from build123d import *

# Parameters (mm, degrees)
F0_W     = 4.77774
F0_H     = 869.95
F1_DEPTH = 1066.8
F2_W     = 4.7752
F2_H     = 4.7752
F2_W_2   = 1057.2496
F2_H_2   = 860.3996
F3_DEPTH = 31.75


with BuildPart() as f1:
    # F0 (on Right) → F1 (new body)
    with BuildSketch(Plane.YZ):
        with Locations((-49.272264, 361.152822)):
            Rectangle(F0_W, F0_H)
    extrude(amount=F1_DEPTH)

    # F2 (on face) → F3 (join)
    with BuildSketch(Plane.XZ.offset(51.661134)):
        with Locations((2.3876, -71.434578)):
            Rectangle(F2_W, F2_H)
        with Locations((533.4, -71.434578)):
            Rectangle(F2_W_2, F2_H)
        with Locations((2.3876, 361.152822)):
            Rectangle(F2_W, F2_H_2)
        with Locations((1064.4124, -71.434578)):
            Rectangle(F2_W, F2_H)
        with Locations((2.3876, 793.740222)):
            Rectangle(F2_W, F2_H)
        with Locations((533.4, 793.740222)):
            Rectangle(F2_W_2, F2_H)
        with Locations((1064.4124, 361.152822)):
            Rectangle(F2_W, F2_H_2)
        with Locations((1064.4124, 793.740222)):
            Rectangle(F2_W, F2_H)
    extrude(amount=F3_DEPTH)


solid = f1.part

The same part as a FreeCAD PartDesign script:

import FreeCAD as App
import Part
import Sketcher
Q = App.Units.Quantity


def add_polygon(sketch, points):
    """Adds a closed chain of lines whose ends are joined by coincident constraints."""
    first, n = sketch.GeometryCount, len(points)
    for a, b in zip(points, points[1:] + points[:1]):
        sketch.addGeometry(Part.LineSegment(App.Vector(*a, 0), App.Vector(*b, 0)), False)
    for i in range(n):
        sketch.addConstraint(Sketcher.Constraint("Coincident", first + i, 2, first + (i + 1) % n, 1))

doc = App.newDocument("Part")
params = doc.addObject("Spreadsheet::Sheet", "Params")
for row, (alias, value) in enumerate([
    ("sketch1_height", "34.25 in"),
    ("pad1_length", "42 in"),
    ("sketch2_width", "42 in"),
    ("sketch2_height", "34.25 in"),
    ("sketch2_width2", "41.624 in"),
    ("sketch2_height2", "33.874 in"),
    ("pad2_length", "1.25 in"),
], start=1):
    params.set(f"A{row}", alias)
    params.set(f"B{row}", "=" + value)
    params.setAlias(f"B{row}", alias)

body = doc.addObject("PartDesign::Body", "Body")

# Sketch on YZ plane
sketch1 = body.newObject("Sketcher::SketchObject", "Sketch")
sketch1.AttachmentSupport = (doc.getObject("YZ_Plane"), [""])
sketch1.MapMode = "FlatFace"
add_polygon(sketch1, [(-51.7, 796.1), (-51.7, -73.8), (-46.9, -73.8), (-46.9, 796.1)])  # lines 0-3
sketch1.addConstraint([
    Sketcher.Constraint("Vertical", 0),
    Sketcher.Constraint("Horizontal", 1),
    Sketcher.Constraint("Vertical", 2),
    Sketcher.Constraint("Horizontal", 3),
    Sketcher.Constraint("DistanceY", 0, 2, 0, 1, Q("34.25 in")),
    Sketcher.Constraint("DistanceX", 1, 1, 1, 2, Q("0.1881 in")),
    Sketcher.Constraint("DistanceY", -1, 1, 2, 2, Q("796.127822 mm")),
    Sketcher.Constraint("DistanceX", 0, 2, -1, 1, Q("51.661134 mm")),
])
sketch1.setExpression("Constraints[8]", "Params.sketch1_height")
pad1 = body.newObject("PartDesign::Pad", "Pad")
pad1.Profile = sketch1
pad1.setExpression("Length", "Params.pad1_length")

# Sketch on XZ plane
sketch2 = body.newObject("Sketcher::SketchObject", "Sketch001")
sketch2.AttachmentSupport = (doc.getObject("XZ_Plane"), [""])
sketch2.MapMode = "FlatFace"
sketch2.AttachmentOffset = App.Placement(App.Vector(0, 0, 51.661134), App.Rotation())
add_polygon(sketch2, [(1067, -74), (1067, 796), (0, 796), (0, -74)])  # lines 0-3
add_polygon(sketch2, [(1062, 791), (1062, -69), (5, -69), (5, 791)])  # lines 4-7
sketch2.addConstraint([
    Sketcher.Constraint("Vertical", 0),
    Sketcher.Constraint("Horizontal", 1),
    Sketcher.Constraint("Vertical", 2),
    Sketcher.Constraint("Horizontal", 3),
    Sketcher.Constraint("Vertical", 4),
    Sketcher.Constraint("Horizontal", 5),
    Sketcher.Constraint("Vertical", 6),
    Sketcher.Constraint("Horizontal", 7),
    Sketcher.Constraint("PointOnObject", 1, 2, -2),
    Sketcher.Constraint("DistanceX", 1, 2, 1, 1, Q("42 in")),
    Sketcher.Constraint("DistanceY", 0, 1, 0, 2, Q("34.25 in")),
    Sketcher.Constraint("DistanceX", 5, 2, 5, 1, Q("41.624 in")),
    Sketcher.Constraint("DistanceY", 4, 2, 4, 1, Q("33.874 in")),
    Sketcher.Constraint("DistanceX", -1, 1, 4, 2, Q("41.812 in")),
    Sketcher.Constraint("DistanceY", 3, 2, 4, 2, Q("0.188 in")),
    Sketcher.Constraint("DistanceY", -1, 1, 0, 2, Q("796.127822 mm")),
])
sketch2.setExpression("Constraints[17]", "Params.sketch2_width")
sketch2.setExpression("Constraints[18]", "Params.sketch2_height")
sketch2.setExpression("Constraints[19]", "Params.sketch2_width2")
sketch2.setExpression("Constraints[20]", "Params.sketch2_height2")
pad2 = body.newObject("PartDesign::Pad", "Pad001")
pad2.Profile = sketch2
pad2.setExpression("Length", "Params.pad2_length")

doc.recompute()
